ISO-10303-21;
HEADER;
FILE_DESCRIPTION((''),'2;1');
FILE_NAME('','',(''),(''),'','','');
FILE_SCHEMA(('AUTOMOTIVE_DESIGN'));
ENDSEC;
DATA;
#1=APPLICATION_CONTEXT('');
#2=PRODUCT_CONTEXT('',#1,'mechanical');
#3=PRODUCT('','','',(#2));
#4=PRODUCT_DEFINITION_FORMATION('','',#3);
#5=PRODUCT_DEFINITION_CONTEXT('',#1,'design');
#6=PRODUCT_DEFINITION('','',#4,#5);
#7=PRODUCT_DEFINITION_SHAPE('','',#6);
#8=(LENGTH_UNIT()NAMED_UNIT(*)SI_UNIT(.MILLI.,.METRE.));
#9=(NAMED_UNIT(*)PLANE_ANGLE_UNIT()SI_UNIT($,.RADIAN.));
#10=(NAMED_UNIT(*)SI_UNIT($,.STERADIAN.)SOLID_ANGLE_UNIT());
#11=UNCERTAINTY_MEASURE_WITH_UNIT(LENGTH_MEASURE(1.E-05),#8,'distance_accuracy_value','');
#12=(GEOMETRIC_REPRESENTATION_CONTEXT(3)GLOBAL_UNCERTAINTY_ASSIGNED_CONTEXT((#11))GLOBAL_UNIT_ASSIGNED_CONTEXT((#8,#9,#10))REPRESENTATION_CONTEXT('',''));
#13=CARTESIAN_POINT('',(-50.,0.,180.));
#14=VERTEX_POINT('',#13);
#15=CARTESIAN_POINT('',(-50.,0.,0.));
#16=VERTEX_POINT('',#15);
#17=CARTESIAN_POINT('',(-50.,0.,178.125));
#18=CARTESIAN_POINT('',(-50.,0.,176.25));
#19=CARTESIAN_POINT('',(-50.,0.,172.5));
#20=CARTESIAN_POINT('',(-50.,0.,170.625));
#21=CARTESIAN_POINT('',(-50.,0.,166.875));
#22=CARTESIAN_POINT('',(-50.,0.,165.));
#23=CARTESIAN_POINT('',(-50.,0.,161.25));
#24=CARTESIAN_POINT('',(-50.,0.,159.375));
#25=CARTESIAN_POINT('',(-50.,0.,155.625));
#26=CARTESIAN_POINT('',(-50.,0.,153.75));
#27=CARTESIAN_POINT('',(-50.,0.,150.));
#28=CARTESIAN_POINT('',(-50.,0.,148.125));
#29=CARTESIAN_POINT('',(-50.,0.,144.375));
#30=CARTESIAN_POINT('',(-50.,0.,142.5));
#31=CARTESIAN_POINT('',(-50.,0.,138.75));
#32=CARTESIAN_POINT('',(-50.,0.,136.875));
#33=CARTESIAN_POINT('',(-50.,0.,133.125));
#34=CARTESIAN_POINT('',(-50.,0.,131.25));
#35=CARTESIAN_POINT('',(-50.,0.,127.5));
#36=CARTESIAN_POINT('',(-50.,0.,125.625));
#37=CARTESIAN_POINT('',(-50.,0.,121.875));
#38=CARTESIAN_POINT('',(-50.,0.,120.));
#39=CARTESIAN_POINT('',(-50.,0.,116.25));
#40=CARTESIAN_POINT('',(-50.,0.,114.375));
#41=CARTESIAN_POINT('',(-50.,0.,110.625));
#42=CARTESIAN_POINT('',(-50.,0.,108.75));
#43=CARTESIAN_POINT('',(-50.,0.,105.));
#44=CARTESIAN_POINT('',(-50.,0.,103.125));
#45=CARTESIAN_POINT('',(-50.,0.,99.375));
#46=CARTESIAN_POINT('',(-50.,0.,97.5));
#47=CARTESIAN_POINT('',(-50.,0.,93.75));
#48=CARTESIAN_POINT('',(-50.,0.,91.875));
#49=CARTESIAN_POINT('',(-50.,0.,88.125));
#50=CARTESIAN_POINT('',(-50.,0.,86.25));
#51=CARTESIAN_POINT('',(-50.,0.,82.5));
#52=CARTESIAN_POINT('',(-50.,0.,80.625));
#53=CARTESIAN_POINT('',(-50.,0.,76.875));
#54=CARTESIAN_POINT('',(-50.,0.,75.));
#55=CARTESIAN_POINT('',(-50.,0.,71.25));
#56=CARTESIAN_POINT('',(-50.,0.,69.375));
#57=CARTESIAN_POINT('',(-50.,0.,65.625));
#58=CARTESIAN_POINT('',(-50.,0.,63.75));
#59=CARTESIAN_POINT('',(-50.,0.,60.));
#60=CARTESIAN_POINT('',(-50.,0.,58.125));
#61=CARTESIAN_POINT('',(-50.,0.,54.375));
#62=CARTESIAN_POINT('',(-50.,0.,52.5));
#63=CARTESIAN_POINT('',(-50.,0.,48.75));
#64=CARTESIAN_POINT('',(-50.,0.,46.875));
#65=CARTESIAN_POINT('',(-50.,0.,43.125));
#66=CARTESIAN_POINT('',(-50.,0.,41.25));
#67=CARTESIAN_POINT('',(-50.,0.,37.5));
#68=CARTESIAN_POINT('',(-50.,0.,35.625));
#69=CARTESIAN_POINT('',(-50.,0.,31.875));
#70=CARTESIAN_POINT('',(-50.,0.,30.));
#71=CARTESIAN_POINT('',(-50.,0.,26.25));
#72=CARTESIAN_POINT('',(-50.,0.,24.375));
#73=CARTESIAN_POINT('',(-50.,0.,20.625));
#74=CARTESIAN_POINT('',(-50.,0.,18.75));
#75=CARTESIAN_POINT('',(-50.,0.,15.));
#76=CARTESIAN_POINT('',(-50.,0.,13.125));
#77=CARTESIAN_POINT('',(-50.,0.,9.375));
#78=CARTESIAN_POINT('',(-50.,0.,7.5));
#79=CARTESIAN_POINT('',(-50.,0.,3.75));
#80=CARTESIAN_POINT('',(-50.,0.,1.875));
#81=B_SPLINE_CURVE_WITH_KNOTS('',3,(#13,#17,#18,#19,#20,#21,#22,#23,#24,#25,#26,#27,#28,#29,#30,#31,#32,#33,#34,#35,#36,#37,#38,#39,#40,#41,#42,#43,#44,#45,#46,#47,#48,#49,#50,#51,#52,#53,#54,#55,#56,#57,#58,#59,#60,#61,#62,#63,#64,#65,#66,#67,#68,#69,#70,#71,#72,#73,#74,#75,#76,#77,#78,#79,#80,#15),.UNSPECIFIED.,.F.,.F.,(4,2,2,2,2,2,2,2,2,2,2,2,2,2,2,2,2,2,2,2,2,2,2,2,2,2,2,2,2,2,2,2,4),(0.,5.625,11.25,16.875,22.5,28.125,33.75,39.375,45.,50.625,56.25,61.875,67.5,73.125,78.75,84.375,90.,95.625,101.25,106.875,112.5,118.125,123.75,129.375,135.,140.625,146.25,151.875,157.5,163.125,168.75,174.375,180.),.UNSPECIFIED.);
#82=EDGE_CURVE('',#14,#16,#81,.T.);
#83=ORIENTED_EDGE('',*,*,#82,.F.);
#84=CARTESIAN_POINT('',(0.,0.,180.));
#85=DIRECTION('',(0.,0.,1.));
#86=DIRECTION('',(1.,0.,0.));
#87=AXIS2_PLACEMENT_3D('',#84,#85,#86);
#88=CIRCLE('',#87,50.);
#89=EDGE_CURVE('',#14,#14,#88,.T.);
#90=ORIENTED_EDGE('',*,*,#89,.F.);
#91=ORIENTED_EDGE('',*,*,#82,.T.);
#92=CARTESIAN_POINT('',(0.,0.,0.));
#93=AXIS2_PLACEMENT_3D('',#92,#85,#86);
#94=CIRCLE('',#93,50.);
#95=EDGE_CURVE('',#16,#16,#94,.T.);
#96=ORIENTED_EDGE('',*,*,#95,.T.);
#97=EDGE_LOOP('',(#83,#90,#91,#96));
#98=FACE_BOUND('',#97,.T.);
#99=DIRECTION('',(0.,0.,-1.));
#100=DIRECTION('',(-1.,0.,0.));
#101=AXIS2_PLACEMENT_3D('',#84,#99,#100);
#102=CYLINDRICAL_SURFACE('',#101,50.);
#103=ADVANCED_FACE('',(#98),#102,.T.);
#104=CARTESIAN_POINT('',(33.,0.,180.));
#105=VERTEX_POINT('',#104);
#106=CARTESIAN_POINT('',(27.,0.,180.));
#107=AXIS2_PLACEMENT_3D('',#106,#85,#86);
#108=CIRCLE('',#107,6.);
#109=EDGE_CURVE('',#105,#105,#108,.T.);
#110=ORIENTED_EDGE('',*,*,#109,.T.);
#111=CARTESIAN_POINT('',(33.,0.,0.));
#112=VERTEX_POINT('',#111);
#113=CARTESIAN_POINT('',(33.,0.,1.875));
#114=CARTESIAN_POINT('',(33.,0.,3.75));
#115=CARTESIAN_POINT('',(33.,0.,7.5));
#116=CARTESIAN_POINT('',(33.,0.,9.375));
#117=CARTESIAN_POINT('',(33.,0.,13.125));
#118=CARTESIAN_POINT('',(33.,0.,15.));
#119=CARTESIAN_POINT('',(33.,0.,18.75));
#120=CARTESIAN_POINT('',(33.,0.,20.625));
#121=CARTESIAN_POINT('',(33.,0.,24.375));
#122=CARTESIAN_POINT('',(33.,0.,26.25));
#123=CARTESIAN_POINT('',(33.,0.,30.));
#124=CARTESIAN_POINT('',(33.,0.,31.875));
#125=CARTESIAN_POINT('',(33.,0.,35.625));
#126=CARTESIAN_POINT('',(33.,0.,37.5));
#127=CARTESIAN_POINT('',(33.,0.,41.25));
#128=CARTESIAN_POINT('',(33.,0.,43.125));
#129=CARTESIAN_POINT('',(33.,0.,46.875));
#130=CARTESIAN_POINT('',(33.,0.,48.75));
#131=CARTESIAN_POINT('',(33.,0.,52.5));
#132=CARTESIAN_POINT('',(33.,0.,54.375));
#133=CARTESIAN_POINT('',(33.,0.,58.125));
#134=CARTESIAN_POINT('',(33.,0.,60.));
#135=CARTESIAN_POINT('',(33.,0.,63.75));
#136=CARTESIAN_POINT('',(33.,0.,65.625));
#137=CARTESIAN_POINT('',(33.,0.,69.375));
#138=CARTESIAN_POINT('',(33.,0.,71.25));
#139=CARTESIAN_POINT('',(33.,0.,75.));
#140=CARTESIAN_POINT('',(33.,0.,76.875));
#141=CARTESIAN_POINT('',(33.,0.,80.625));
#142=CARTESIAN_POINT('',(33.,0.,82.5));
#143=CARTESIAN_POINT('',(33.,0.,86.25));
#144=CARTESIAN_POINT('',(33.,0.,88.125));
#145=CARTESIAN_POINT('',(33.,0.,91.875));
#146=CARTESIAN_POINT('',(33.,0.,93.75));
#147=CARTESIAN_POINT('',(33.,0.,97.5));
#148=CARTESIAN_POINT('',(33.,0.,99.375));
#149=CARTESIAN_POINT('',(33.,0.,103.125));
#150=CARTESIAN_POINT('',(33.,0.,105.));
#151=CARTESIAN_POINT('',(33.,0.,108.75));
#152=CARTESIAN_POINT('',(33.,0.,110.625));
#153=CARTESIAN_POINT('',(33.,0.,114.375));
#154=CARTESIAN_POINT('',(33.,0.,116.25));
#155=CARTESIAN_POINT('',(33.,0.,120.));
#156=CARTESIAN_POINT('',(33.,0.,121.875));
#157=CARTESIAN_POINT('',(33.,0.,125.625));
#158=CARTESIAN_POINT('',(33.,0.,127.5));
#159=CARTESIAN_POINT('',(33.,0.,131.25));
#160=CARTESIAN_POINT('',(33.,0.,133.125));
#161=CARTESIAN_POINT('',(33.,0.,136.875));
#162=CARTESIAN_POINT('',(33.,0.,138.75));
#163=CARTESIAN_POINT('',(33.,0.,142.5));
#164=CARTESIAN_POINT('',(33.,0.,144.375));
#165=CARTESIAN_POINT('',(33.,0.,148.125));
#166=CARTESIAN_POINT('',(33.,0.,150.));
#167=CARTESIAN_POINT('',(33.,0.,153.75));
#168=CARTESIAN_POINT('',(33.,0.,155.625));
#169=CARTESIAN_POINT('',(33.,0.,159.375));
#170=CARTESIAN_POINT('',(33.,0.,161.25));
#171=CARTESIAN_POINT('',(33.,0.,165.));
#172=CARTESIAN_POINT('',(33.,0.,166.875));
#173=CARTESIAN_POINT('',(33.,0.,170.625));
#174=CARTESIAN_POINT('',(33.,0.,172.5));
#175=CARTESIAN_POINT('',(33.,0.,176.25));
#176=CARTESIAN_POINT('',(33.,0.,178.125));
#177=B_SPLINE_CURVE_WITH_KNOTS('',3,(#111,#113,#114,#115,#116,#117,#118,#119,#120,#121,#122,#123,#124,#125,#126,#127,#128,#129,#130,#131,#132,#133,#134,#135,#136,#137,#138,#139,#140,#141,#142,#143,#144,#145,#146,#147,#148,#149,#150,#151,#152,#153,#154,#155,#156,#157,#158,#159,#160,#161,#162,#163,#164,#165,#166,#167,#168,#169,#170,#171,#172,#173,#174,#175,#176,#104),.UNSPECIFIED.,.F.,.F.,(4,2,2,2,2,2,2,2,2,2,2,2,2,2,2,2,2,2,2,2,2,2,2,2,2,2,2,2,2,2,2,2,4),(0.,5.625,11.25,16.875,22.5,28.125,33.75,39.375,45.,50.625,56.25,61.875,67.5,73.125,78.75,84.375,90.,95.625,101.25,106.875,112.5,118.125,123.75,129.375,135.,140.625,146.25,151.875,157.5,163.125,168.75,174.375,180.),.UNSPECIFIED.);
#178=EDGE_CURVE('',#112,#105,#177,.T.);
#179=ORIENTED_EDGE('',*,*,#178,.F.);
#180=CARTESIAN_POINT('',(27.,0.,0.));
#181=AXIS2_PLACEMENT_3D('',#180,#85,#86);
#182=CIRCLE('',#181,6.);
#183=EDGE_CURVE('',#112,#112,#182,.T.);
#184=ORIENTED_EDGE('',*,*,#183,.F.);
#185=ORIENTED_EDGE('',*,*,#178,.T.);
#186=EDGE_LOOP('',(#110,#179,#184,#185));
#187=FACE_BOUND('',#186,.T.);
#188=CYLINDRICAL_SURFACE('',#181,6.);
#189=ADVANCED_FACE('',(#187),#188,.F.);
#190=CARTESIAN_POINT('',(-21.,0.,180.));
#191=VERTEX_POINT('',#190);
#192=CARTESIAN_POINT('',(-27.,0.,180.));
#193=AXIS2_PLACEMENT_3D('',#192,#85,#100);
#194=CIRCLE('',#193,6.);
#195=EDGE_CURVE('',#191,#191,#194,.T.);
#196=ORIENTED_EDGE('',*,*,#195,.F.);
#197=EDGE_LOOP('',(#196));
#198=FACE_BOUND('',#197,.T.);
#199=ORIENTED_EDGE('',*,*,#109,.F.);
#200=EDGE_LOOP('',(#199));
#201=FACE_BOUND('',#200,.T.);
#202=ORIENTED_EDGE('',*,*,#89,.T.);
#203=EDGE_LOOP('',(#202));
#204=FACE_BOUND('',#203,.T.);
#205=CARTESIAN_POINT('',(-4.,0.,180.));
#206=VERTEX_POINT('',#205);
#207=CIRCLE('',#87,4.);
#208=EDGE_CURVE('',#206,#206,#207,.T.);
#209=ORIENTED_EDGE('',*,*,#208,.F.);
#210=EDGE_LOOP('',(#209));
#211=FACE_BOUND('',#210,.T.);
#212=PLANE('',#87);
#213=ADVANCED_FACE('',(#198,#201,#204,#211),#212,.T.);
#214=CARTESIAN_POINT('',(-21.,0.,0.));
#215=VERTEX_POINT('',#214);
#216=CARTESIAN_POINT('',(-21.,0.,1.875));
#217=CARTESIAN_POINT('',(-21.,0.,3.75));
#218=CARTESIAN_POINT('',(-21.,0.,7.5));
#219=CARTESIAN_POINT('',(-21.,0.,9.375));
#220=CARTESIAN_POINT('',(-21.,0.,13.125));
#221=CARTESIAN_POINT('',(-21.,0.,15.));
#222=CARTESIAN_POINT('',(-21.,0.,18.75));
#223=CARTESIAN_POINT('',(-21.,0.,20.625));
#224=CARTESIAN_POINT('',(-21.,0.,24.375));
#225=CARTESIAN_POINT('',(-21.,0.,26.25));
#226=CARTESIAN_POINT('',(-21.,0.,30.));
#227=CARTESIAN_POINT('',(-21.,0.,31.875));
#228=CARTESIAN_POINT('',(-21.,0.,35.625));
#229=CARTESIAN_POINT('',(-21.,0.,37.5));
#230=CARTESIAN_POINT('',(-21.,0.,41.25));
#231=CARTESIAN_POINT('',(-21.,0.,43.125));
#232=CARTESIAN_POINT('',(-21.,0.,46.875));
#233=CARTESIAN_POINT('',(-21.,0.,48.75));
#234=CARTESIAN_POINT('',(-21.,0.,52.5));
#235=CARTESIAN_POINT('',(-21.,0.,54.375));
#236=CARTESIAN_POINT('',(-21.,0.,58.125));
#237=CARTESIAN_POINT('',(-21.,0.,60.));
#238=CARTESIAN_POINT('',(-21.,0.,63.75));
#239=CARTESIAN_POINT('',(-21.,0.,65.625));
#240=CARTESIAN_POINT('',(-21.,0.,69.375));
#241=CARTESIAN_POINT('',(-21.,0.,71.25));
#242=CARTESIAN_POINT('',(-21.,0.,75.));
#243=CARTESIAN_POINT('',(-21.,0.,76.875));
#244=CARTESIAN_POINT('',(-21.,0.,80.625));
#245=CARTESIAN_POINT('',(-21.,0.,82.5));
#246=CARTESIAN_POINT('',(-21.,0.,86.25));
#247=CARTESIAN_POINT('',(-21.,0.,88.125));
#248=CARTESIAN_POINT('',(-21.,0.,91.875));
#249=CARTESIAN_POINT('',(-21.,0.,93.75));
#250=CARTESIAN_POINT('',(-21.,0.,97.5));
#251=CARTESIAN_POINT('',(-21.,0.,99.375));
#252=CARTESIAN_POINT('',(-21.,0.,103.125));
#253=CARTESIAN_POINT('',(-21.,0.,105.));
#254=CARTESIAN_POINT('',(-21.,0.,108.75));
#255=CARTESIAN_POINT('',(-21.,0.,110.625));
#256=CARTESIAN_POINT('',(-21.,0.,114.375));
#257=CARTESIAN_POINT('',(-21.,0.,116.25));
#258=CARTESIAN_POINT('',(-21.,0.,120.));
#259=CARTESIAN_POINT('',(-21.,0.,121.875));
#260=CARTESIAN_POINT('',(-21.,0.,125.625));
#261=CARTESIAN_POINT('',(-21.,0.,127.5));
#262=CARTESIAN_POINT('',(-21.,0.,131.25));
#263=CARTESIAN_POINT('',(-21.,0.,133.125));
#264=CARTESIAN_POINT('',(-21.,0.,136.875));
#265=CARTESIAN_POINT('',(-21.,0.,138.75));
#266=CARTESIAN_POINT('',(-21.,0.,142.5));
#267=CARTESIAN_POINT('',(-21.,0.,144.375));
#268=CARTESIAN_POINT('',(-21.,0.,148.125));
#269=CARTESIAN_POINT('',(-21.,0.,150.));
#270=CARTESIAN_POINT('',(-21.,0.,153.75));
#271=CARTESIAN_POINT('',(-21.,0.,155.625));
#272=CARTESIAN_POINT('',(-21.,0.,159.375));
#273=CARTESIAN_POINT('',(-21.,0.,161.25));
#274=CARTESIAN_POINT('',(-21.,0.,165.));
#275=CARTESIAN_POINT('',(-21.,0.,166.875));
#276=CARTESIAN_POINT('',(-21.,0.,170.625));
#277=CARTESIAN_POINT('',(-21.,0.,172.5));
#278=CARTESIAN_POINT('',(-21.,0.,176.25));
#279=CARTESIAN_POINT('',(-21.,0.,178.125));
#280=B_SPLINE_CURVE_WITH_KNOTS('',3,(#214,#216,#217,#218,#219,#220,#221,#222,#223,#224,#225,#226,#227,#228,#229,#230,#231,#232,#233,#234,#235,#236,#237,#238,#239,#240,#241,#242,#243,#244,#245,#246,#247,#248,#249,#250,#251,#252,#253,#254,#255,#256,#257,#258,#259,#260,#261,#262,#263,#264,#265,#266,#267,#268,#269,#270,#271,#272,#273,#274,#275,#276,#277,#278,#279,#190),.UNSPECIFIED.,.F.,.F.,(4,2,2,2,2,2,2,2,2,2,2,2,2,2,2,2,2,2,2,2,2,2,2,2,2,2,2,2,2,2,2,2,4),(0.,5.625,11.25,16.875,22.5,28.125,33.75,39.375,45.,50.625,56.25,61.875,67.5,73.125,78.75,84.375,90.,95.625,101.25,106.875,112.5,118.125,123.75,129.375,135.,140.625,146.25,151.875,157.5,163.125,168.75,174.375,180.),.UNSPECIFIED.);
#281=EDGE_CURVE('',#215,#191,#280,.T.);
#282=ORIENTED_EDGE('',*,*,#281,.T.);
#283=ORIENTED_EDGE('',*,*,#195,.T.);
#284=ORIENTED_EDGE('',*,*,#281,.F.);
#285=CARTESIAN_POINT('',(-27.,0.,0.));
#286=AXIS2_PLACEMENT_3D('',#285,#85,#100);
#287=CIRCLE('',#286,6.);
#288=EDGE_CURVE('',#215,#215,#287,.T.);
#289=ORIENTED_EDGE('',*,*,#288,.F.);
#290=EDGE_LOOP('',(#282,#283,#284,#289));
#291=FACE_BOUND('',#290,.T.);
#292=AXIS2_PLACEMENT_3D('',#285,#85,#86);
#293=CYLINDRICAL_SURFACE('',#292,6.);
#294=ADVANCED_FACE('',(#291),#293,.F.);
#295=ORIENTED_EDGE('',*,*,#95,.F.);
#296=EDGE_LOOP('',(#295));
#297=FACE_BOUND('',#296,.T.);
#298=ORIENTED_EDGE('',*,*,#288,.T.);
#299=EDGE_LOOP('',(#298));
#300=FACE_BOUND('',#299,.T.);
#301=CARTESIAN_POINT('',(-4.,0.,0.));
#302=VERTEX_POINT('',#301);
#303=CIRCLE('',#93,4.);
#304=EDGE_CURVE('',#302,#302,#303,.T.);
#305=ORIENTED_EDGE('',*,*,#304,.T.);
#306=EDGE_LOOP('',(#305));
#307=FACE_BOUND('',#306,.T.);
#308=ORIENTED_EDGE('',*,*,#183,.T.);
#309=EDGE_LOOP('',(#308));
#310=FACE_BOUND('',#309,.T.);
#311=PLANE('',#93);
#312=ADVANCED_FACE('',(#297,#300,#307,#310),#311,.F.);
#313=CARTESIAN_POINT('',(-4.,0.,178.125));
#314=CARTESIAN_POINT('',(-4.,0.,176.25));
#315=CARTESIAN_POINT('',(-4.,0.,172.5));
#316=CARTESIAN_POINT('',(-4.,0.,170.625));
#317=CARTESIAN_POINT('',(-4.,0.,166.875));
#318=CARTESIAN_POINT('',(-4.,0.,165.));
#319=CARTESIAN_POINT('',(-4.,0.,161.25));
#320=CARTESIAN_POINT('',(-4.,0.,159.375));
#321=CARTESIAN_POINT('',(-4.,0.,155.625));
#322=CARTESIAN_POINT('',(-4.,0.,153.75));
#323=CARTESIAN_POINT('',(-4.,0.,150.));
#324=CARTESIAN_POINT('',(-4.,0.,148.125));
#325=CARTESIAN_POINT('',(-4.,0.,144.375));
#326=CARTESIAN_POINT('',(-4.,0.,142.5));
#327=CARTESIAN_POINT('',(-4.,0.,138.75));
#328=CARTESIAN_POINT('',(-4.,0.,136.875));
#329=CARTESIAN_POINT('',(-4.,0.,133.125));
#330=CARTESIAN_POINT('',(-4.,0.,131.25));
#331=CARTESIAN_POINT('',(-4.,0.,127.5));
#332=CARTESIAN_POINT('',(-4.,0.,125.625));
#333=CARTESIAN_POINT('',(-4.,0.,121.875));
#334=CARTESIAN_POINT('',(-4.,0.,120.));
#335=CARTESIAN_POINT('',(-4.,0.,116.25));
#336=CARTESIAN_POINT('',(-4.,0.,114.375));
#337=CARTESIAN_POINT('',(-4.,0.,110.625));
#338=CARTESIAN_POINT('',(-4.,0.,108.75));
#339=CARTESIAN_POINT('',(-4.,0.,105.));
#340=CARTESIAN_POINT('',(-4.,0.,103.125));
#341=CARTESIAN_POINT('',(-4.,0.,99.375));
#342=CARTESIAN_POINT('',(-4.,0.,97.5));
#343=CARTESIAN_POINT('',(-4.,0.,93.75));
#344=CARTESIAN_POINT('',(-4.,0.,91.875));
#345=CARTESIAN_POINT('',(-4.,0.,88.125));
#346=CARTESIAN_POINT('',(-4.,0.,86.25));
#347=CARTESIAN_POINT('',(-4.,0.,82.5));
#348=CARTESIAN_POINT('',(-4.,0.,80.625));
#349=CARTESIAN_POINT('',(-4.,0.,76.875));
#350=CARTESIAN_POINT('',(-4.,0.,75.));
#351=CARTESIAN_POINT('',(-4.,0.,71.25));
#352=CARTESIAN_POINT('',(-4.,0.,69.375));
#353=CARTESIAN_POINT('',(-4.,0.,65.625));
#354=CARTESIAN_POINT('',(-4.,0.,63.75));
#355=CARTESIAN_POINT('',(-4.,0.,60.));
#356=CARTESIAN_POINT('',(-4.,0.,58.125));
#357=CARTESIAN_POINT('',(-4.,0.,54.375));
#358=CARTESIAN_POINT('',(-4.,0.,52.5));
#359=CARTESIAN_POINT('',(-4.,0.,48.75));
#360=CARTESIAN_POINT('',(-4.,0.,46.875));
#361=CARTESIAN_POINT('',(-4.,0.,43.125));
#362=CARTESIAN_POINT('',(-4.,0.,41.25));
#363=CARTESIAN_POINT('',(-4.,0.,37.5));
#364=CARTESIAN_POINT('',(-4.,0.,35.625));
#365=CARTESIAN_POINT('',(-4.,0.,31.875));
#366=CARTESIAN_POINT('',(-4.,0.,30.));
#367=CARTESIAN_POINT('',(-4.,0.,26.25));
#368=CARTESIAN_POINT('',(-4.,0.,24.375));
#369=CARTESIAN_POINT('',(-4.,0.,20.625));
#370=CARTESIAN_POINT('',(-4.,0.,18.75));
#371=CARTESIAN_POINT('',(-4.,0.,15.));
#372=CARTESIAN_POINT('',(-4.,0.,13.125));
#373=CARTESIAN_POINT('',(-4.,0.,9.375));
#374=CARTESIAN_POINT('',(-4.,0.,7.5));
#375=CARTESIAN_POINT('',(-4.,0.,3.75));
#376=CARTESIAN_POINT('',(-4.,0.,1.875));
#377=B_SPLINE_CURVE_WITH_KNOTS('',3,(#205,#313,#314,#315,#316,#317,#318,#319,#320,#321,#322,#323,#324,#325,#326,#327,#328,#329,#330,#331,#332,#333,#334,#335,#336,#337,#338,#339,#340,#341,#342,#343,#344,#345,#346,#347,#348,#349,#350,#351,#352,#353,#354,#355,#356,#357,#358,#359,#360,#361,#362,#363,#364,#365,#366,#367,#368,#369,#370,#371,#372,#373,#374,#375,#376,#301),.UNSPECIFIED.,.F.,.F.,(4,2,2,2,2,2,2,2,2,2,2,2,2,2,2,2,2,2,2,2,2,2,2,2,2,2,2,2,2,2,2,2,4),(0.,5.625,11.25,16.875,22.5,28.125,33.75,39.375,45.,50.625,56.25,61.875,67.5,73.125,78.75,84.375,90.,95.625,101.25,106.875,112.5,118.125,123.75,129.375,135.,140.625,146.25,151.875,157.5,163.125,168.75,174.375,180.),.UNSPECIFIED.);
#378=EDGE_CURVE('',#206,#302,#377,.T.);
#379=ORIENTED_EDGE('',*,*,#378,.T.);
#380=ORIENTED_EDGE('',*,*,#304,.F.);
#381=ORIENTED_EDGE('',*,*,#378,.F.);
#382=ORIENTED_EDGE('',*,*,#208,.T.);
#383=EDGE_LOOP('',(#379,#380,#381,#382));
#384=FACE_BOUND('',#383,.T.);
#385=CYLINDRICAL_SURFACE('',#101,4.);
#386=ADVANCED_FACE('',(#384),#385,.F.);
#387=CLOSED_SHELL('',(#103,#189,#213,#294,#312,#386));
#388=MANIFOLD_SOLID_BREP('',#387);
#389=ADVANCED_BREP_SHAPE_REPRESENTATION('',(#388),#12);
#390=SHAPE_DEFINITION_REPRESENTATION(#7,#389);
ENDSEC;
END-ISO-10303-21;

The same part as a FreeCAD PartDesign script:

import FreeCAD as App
import Part
import Sketcher

doc = App.newDocument("Part")
body = doc.addObject("PartDesign::Body", "Body")

# Sketch on XY plane
sketch1 = body.newObject("Sketcher::SketchObject", "Sketch")
sketch1.AttachmentSupport = (doc.getObject("XY_Plane"), [""])
sketch1.MapMode = "FlatFace"
sketch1.addGeometry([
    Part.Circle(App.Vector(0, 0, 0), App.Vector(0, 0, 1), 50),
    Part.Circle(App.Vector(0, 0, 0), App.Vector(0, 0, 1), 4),
], False)
sketch1.addConstraint([
    Sketcher.Constraint("Coincident", 0, 3, -1, 1),
    Sketcher.Constraint("Coincident", 1, 3, -1, 1),
    Sketcher.Constraint("Diameter", 0, 100.0),
    Sketcher.Constraint("Diameter", 1, 8.0),
])
pad1 = body.newObject("PartDesign::Pad", "Pad")
pad1.Profile = sketch1
pad1.Length = 180

# Sketch on XY plane
sketch2 = body.newObject("Sketcher::SketchObject", "Sketch001")
sketch2.AttachmentSupport = (doc.getObject("XY_Plane"), [""])
sketch2.MapMode = "FlatFace"
sketch2.AttachmentOffset = App.Placement(App.Vector(0, 0, 180), App.Rotation())
sketch2.addGeometry([
    Part.Circle(App.Vector(27, 0, 0), App.Vector(0, 0, 1), 6),
    Part.Circle(App.Vector(-27, 0, 0), App.Vector(0, 0, 1), 6),
], False)
sketch2.addConstraint([
    Sketcher.Constraint("Equal", 0, 1),
    Sketcher.Constraint("Symmetric", 0, 3, 1, 3, -1, 1),
    Sketcher.Constraint("PointOnObject", 0, 3, -1),
    Sketcher.Constraint("Diameter", 0, 12.0),
    Sketcher.Constraint("DistanceX", -1, 1, 0, 3, 27.0),
])
pocket1 = body.newObject("PartDesign::Pocket", "Pocket")
pocket1.Profile = sketch2
pocket1.Type = "ThroughAll"

doc.recompute()
